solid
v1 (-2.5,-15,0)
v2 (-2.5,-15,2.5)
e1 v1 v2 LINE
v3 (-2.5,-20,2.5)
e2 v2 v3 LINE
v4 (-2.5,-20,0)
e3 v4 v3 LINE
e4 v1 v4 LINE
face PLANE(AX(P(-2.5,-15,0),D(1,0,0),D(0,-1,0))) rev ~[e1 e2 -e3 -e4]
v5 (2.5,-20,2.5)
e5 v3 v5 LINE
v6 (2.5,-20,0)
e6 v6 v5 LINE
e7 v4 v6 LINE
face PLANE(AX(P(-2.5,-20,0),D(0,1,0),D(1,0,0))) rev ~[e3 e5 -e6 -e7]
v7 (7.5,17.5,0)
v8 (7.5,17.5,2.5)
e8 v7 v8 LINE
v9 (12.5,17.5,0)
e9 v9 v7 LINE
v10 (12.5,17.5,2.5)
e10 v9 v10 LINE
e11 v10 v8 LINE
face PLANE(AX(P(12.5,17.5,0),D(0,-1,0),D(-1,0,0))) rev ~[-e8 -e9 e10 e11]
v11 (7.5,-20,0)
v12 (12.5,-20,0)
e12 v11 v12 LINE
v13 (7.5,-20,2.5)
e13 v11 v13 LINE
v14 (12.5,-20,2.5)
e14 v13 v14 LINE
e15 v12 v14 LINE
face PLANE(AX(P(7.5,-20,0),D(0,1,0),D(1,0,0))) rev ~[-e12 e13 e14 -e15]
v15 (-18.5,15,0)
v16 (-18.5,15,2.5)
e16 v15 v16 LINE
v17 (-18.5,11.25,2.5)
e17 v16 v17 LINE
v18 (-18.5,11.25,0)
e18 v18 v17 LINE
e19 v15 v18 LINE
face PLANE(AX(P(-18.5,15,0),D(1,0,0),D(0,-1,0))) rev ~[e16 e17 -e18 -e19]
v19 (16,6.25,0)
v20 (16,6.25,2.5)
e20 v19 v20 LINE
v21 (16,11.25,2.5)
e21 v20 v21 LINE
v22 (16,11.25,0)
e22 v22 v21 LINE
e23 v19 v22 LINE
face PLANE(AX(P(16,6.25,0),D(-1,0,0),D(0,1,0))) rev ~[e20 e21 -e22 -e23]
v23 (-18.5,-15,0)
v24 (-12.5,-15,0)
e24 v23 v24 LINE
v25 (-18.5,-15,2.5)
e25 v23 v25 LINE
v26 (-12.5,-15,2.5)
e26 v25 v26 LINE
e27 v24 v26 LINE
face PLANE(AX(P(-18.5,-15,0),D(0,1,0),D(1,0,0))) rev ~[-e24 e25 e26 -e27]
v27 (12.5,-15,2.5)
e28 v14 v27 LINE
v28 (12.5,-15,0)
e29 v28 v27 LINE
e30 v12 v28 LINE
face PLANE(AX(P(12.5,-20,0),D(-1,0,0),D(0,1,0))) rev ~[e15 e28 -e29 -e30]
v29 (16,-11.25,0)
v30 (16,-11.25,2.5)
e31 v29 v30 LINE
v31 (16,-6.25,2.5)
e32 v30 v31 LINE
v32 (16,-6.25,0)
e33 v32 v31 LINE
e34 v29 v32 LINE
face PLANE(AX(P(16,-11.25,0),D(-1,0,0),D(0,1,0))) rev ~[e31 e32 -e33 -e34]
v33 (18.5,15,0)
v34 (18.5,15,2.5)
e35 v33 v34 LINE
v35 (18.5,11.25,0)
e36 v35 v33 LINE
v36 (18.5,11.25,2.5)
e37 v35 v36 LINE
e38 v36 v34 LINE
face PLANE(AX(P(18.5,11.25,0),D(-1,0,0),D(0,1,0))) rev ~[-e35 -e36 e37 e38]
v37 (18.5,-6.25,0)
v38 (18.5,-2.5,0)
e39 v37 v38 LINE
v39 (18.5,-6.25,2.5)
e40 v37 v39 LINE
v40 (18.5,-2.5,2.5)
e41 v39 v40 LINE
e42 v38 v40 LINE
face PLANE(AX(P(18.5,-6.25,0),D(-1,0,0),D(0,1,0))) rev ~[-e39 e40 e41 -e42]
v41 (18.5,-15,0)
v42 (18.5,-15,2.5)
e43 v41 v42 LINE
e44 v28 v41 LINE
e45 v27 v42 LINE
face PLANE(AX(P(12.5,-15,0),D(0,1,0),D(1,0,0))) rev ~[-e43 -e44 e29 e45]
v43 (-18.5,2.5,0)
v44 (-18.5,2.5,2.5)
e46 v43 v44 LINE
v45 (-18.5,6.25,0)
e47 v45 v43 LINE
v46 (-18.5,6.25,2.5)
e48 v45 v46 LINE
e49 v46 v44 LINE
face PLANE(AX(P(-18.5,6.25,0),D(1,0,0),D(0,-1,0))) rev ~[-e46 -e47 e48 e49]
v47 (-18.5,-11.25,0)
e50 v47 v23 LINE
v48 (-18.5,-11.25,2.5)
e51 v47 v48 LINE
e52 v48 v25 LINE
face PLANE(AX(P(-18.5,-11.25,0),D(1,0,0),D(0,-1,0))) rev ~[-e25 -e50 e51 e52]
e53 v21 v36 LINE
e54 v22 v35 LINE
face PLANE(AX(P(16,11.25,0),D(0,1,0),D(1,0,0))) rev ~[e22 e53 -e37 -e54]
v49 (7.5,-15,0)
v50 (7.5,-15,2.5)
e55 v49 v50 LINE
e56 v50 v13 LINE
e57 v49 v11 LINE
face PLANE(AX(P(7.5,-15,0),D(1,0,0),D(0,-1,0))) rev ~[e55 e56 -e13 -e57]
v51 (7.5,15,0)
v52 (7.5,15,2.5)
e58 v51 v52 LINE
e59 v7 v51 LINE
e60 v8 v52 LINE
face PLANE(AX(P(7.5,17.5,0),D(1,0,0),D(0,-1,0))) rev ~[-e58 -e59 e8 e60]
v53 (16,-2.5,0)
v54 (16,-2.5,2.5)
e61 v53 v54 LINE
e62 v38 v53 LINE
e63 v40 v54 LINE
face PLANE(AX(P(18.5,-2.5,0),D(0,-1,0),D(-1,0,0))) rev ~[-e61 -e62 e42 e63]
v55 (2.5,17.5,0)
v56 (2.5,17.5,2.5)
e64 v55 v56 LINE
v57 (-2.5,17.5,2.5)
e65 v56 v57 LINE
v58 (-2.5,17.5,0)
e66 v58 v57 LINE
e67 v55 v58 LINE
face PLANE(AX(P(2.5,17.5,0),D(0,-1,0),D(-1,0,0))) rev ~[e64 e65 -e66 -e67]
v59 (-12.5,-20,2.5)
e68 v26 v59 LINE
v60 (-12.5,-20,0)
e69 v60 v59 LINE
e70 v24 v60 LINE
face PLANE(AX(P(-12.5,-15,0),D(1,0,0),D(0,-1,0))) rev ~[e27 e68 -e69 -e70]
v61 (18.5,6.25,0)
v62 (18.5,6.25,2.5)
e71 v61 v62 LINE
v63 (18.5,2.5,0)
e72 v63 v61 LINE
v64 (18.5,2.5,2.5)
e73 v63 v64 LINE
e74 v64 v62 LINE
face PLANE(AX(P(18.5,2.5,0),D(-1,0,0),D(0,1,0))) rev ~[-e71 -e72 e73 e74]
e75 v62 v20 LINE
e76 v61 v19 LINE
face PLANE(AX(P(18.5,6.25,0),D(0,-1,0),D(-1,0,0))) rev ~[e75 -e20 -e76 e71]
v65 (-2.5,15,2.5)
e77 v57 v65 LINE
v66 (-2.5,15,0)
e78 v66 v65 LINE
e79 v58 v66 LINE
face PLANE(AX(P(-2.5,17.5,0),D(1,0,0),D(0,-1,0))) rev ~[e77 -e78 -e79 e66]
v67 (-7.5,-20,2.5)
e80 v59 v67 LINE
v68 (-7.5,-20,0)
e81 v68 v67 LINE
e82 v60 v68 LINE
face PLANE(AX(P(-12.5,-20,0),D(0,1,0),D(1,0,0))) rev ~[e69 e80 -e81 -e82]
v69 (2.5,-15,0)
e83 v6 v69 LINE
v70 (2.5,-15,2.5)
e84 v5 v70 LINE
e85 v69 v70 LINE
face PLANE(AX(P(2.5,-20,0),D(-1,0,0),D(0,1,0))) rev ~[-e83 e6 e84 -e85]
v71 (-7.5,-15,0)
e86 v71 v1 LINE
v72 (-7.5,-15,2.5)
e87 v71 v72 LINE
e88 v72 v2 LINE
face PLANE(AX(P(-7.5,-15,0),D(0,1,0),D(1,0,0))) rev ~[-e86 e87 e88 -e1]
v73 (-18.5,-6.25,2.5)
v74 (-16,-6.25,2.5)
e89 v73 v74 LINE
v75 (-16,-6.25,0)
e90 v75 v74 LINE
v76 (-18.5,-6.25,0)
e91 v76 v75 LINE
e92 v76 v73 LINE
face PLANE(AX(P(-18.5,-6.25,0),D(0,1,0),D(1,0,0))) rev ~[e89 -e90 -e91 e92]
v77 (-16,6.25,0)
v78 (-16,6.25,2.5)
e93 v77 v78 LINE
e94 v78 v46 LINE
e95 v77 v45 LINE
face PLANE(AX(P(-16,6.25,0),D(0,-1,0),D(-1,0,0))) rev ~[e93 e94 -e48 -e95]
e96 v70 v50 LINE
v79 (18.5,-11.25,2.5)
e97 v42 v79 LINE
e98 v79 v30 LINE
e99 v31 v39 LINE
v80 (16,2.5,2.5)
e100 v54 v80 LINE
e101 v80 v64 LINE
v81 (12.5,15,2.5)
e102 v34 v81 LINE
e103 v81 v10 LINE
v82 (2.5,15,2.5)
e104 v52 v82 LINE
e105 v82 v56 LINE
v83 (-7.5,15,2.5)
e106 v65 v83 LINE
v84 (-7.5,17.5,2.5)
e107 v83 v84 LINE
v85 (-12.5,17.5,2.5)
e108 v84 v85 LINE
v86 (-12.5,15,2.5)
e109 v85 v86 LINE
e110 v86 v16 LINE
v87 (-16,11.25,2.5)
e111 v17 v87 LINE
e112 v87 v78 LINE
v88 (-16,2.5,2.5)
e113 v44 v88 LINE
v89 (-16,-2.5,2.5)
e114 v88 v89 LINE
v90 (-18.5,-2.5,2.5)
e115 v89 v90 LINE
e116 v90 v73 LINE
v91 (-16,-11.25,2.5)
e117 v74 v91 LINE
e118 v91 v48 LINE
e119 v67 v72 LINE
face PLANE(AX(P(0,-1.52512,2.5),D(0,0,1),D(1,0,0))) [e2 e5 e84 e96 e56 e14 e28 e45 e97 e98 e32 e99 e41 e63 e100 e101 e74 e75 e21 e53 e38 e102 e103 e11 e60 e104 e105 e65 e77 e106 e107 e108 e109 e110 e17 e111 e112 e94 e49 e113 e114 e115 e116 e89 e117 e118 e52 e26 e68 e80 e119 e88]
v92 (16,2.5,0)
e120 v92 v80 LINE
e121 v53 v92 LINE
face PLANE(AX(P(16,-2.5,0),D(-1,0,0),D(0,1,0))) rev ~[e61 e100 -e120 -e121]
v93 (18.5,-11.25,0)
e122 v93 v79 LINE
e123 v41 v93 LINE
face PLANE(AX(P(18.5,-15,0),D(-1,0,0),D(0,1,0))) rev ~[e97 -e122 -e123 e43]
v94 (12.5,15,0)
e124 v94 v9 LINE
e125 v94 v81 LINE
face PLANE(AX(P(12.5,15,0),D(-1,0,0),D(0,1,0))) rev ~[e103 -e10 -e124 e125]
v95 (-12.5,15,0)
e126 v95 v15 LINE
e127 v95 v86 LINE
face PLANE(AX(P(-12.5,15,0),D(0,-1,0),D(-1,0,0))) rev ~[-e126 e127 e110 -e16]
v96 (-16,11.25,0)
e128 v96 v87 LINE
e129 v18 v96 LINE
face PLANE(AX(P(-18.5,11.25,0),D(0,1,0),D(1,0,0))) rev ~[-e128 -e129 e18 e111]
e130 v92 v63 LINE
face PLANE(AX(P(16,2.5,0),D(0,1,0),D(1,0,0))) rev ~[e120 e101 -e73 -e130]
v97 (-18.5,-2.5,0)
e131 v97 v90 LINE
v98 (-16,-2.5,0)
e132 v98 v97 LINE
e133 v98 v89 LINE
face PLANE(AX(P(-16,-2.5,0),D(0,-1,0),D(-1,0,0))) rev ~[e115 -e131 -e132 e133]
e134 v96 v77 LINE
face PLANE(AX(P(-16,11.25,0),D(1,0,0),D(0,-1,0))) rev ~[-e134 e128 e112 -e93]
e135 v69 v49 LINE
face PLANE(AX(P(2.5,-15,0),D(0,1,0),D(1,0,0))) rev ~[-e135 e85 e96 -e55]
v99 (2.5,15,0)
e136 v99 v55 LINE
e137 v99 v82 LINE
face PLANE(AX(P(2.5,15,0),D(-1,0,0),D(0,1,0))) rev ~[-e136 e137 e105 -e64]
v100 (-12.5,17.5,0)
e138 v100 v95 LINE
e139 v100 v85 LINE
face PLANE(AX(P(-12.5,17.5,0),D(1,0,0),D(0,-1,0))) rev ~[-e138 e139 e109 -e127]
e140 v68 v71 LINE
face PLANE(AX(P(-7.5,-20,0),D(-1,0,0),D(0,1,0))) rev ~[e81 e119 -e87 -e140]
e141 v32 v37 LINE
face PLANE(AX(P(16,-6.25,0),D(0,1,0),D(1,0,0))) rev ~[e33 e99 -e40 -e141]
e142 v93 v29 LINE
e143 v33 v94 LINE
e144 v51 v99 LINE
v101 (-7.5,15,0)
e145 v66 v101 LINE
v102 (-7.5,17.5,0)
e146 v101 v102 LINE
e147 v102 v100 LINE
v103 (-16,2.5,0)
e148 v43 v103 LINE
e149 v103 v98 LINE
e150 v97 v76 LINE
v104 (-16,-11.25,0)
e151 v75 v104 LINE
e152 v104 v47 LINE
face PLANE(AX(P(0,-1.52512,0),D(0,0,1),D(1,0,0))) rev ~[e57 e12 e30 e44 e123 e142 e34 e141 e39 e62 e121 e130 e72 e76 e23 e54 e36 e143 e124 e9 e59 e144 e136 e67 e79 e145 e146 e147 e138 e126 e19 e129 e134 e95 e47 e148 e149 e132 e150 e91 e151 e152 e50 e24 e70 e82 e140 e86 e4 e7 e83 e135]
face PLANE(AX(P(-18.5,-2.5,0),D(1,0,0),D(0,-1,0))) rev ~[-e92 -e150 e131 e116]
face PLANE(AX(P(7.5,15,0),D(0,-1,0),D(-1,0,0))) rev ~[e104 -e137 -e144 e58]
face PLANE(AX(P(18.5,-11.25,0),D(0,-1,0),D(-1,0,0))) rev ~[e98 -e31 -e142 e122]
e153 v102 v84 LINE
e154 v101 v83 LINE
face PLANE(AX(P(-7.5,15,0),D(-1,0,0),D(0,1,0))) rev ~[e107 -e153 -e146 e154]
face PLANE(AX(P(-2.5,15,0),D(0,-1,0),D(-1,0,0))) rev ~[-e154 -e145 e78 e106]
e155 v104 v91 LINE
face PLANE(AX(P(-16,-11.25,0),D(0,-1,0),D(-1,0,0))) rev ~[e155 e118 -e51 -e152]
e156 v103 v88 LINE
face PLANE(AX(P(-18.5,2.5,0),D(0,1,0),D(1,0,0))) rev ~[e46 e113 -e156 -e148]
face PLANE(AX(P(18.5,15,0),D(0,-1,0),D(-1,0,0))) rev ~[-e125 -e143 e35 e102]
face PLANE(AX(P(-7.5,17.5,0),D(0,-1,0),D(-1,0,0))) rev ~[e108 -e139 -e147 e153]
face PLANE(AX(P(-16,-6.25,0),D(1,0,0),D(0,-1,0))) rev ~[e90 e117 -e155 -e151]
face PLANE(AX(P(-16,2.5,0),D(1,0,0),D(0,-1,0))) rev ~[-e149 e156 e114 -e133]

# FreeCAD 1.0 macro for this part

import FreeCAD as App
import Part
import Sketcher
from FreeCAD import Vector


def add_polygon(sketch, points):
    """Adds a closed chain of lines whose ends are joined by coincident constraints."""
    first, n = sketch.GeometryCount, len(points)
    for a, b in zip(points, points[1:] + points[:1]):
        sketch.addGeometry(Part.LineSegment(App.Vector(*a, 0), App.Vector(*b, 0)), False)
    for i in range(n):
        sketch.addConstraint(Sketcher.Constraint("Coincident", first + i, 2, first + (i + 1) % n, 1))

doc = App.newDocument("Part")
body = doc.addObject("PartDesign::Body", "Body")

# Sketch on XY plane
sketch1 = body.newObject("Sketcher::SketchObject", "Sketch")
sketch1.AttachmentSupport = (doc.getObject("XY_Plane"), [""])
sketch1.MapMode = "FlatFace"
add_polygon(sketch1, [(2.5, -20), (2.5, -15), (7.5, -15), (7.5, -20), (12.5, -20), (12.5, -15), (18.5, -15), (18.5, -11.2), (16, -11.2), (16, -6.2), (18.5, -6.2), (18.5, -2.5), (16, -2.5), (16, 2.5), (18.5, 2.5), (18.5, 6.2), (16, 6.2), (16, 11.2), (18.5, 11.2), (18.5, 15), (12.5, 15), (12.5, 17.5), (7.5, 17.5), (7.5, 15), (2.5, 15), (2.5, 17.5), (-2.5, 17.5), (-2.5, 15), (-7.5, 15), (-7.5, 17.5), (-12.5, 17.5), (-12.5, 15), (-18.5, 15), (-18.5, 11.2), (-16, 11.2), (-16, 6.2), (-18.5, 6.2), (-18.5, 2.5), (-16, 2.5), (-16, -2.5), (-18.5, -2.5), (-18.5, -6.2), (-16, -6.2), (-16, -11.2), (-18.5, -11.2), (-18.5, -15), (-12.5, -15), (-12.5, -20), (-7.5, -20), (-7.5, -15), (-2.5, -15), (-2.5, -20)])  # lines 0-51
sketch1.addConstraint([
    Sketcher.Constraint("Vertical", 0),
    Sketcher.Constraint("Horizontal", 1),
    Sketcher.Constraint("Vertical", 2),
    Sketcher.Constraint("Horizontal", 3),
    Sketcher.Constraint("Vertical", 4),
    Sketcher.Constraint("Horizontal", 5),
    Sketcher.Constraint("Vertical", 6),
    Sketcher.Constraint("Horizontal", 7),
    Sketcher.Constraint("Vertical", 8),
    Sketcher.Constraint("Horizontal", 9),
    Sketcher.Constraint("Vertical", 10),
    Sketcher.Constraint("Horizontal", 11),
    Sketcher.Constraint("Vertical", 12),
    Sketcher.Constraint("Horizontal", 13),
    Sketcher.Constraint("Vertical", 14),
    Sketcher.Constraint("Horizontal", 15),
    Sketcher.Constraint("Vertical", 16),
    Sketcher.Constraint("Horizontal", 17),
    Sketcher.Constraint("Vertical", 18),
    Sketcher.Constraint("Horizontal", 19),
    Sketcher.Constraint("Vertical", 20),
    Sketcher.Constraint("Horizontal", 21),
    Sketcher.Constraint("Vertical", 22),
    Sketcher.Constraint("Horizontal", 23),
    Sketcher.Constraint("Vertical", 24),
    Sketcher.Constraint("Horizontal", 25),
    Sketcher.Constraint("Vertical", 26),
    Sketcher.Constraint("Horizontal", 27),
    Sketcher.Constraint("Vertical", 28),
    Sketcher.Constraint("Horizontal", 29),
    Sketcher.Constraint("Vertical", 30),
    Sketcher.Constraint("Horizontal", 31),
    Sketcher.Constraint("Vertical", 32),
    Sketcher.Constraint("Horizontal", 33),
    Sketcher.Constraint("Vertical", 34),
    Sketcher.Constraint("Horizontal", 35),
    Sketcher.Constraint("Vertical", 36),
    Sketcher.Constraint("Horizontal", 37),
    Sketcher.Constraint("Vertical", 38),
    Sketcher.Constraint("Horizontal", 39),
    Sketcher.Constraint("Vertical", 40),
    Sketcher.Constraint("Horizontal", 41),
    Sketcher.Constraint("Vertical", 42),
    Sketcher.Constraint("Horizontal", 43),
    Sketcher.Constraint("Vertical", 44),
    Sketcher.Constraint("Horizontal", 45),
    Sketcher.Constraint("Vertical", 46),
    Sketcher.Constraint("Horizontal", 47),
    Sketcher.Constraint("Vertical", 48),
    Sketcher.Constraint("Horizontal", 49),
    Sketcher.Constraint("Vertical", 50),
    Sketcher.Constraint("Horizontal", 51),
    Sketcher.Constraint("Symmetric", 0, 2, 26, 2, -1, 1),
    Sketcher.Constraint("Symmetric", 4, 2, 30, 2, -1, 1),
    Sketcher.Constraint("Symmetric", 6, 2, 32, 2, -1, 1),
    Sketcher.Constraint("Symmetric", 8, 2, 34, 2, -1, 1),
    Sketcher.Constraint("Symmetric", 10, 2, 36, 2, -1, 1),
    Sketcher.Constraint("Symmetric", 12, 2, 38, 2, -1, 1),
    Sketcher.Constraint("Symmetric", 14, 2, 40, 2, -1, 1),
    Sketcher.Constraint("Symmetric", 16, 2, 42, 2, -1, 1),
    Sketcher.Constraint("Symmetric", 18, 2, 44, 2, -1, 1),
    Sketcher.Constraint("Symmetric", 22, 2, 48, 2, -1, 1),
    Sketcher.Constraint("Symmetric", 23, 2, 26, 2, -2),
    Sketcher.Constraint("Symmetric", 21, 2, 28, 2, -2),
    Sketcher.Constraint("Symmetric", 19, 2, 30, 2, -2),
    Sketcher.Constraint("Symmetric", 17, 2, 32, 2, -2),
    Sketcher.Constraint("Symmetric", 15, 2, 34, 2, -2),
    Sketcher.Constraint("Symmetric", 13, 2, 36, 2, -2),
    Sketcher.Constraint("Symmetric", 3, 2, 46, 2, -2),
    Sketcher.Constraint("Horizontal", 1, 2, 4, 2),
    Sketcher.Constraint("Horizontal", 21, 2, 24, 2),
    Sketcher.Constraint("Horizontal", 47, 2, 50, 2),
    Sketcher.Constraint("Vertical", 6, 2, 9, 2),
    Sketcher.Constraint("Vertical", 8, 2, 11, 2),
    Sketcher.Constraint("Vertical", 2, 2, 21, 2),
    Sketcher.Constraint("Vertical", 26, 2, 49, 2),
    Sketcher.Constraint("Equal", 1, 3),
    Sketcher.Constraint("Equal", 23, 25),
    Sketcher.Constraint("Equal", 51, 0),
    Sketcher.Constraint("Equal", 4, 8),
    Sketcher.Constraint("Equal", 6, 10),
    Sketcher.Constraint("Equal", 8, 12),
    Sketcher.Constraint("Equal", 43, 20),
    Sketcher.Constraint("DistanceX", 1, 1, 1, 2, 5.0),
    Sketcher.Constraint("DistanceX", 5, 1, 5, 2, 6.0),
    Sketcher.Constraint("DistanceX", 7, 2, 7, 1, 2.5),
    Sketcher.Constraint("DistanceY", 0, 2, -1, 1, 15.0),
])
pad1 = body.newObject("PartDesign::Pad", "Pad")
pad1.Profile = sketch1
pad1.Length = 2.5

doc.recompute()
